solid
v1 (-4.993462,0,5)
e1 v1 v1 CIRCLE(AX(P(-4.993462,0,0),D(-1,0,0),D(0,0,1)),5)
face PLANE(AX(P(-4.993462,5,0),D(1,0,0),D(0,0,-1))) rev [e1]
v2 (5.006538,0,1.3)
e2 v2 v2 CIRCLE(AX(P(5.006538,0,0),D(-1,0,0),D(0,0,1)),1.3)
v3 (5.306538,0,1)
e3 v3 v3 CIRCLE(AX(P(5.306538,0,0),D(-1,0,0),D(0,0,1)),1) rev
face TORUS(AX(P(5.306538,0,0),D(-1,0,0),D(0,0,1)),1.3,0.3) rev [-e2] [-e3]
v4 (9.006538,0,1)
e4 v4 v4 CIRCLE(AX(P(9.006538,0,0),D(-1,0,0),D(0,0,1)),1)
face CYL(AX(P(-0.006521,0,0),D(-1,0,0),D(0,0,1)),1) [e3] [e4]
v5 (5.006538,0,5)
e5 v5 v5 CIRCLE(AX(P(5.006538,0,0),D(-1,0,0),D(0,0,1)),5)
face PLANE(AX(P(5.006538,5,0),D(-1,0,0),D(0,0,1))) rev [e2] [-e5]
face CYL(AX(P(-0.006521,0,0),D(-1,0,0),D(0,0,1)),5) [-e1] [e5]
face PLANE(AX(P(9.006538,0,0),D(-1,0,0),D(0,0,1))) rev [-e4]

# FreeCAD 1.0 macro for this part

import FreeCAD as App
import Part
import Sketcher


def edges_at(feature, points):
    """Names of the edges that pass closest to the given points."""
    edges = feature.Shape.Edges
    near = lambda p: min(range(len(edges)), key=lambda i: edges[i].distToShape(Part.Vertex(*p))[0])
    return sorted({f"Edge{near(p) + 1}" for p in points})


def add_polygon(sketch, points):
    """Adds a closed chain of lines whose ends are joined by coincident constraints."""
    first, n = sketch.GeometryCount, len(points)
    for a, b in zip(points, points[1:] + points[:1]):
        sketch.addGeometry(Part.LineSegment(App.Vector(*a, 0), App.Vector(*b, 0)), False)
    for i in range(n):
        sketch.addConstraint(Sketcher.Constraint("Coincident", first + i, 2, first + (i + 1) % n, 1))

doc = App.newDocument("Part")
body = doc.addObject("PartDesign::Body", "Body")

# Sketch on XY plane
sketch1 = doc.addObject("Sketcher::SketchObject", "Sketch")
body.addObject(sketch1)
sketch1.AttachmentSupport = (doc.XY_Plane, [""])
sketch1.MapMode = "FlatFace"
add_polygon(sketch1, [(5, 5), (-5, 5), (-5, 0), (9, 0), (9, 1), (5, 1)])  # lines 0-5
sketch1.addConstraint(Sketcher.Constraint("Horizontal", 0))
sketch1.addConstraint(Sketcher.Constraint("Vertical", 1))
sketch1.addConstraint(Sketcher.Constraint("Horizontal", 2))
sketch1.addConstraint(Sketcher.Constraint("Vertical", 3))
sketch1.addConstraint(Sketcher.Constraint("Horizontal", 4))
sketch1.addConstraint(Sketcher.Constraint("Vertical", 5))
sketch1.addConstraint(Sketcher.Constraint("PointOnObject", 1, 2, -1))
sketch1.addConstraint(Sketcher.Constraint("Equal", 4, 5))
sketch1.addConstraint(Sketcher.Constraint("DistanceX", 0, 2, 0, 1, 10.0))
sketch1.addConstraint(Sketcher.Constraint("DistanceX", 2, 1, 2, 2, 14.0))
sketch1.addConstraint(Sketcher.Constraint("DistanceY", 1, 2, 1, 1, 5.0))
sketch1.addConstraint(Sketcher.Constraint("DistanceX", 0, 2, -1, 1, 4.993462))
revolution = doc.addObject("PartDesign::Revolution", "Revolution")
body.addObject(revolution)
revolution.Profile = sketch1
revolution.ReferenceAxis = (sketch1, ["H_Axis"])
revolution.Angle = 360
doc.recompute()

fillet = doc.addObject("PartDesign::Fillet", "Fillet")
body.addObject(fillet)
fillet.Base = (revolution, edges_at(revolution, [(5.007, 0, -1)]))
fillet.Radius = 0.3

doc.recompute()
